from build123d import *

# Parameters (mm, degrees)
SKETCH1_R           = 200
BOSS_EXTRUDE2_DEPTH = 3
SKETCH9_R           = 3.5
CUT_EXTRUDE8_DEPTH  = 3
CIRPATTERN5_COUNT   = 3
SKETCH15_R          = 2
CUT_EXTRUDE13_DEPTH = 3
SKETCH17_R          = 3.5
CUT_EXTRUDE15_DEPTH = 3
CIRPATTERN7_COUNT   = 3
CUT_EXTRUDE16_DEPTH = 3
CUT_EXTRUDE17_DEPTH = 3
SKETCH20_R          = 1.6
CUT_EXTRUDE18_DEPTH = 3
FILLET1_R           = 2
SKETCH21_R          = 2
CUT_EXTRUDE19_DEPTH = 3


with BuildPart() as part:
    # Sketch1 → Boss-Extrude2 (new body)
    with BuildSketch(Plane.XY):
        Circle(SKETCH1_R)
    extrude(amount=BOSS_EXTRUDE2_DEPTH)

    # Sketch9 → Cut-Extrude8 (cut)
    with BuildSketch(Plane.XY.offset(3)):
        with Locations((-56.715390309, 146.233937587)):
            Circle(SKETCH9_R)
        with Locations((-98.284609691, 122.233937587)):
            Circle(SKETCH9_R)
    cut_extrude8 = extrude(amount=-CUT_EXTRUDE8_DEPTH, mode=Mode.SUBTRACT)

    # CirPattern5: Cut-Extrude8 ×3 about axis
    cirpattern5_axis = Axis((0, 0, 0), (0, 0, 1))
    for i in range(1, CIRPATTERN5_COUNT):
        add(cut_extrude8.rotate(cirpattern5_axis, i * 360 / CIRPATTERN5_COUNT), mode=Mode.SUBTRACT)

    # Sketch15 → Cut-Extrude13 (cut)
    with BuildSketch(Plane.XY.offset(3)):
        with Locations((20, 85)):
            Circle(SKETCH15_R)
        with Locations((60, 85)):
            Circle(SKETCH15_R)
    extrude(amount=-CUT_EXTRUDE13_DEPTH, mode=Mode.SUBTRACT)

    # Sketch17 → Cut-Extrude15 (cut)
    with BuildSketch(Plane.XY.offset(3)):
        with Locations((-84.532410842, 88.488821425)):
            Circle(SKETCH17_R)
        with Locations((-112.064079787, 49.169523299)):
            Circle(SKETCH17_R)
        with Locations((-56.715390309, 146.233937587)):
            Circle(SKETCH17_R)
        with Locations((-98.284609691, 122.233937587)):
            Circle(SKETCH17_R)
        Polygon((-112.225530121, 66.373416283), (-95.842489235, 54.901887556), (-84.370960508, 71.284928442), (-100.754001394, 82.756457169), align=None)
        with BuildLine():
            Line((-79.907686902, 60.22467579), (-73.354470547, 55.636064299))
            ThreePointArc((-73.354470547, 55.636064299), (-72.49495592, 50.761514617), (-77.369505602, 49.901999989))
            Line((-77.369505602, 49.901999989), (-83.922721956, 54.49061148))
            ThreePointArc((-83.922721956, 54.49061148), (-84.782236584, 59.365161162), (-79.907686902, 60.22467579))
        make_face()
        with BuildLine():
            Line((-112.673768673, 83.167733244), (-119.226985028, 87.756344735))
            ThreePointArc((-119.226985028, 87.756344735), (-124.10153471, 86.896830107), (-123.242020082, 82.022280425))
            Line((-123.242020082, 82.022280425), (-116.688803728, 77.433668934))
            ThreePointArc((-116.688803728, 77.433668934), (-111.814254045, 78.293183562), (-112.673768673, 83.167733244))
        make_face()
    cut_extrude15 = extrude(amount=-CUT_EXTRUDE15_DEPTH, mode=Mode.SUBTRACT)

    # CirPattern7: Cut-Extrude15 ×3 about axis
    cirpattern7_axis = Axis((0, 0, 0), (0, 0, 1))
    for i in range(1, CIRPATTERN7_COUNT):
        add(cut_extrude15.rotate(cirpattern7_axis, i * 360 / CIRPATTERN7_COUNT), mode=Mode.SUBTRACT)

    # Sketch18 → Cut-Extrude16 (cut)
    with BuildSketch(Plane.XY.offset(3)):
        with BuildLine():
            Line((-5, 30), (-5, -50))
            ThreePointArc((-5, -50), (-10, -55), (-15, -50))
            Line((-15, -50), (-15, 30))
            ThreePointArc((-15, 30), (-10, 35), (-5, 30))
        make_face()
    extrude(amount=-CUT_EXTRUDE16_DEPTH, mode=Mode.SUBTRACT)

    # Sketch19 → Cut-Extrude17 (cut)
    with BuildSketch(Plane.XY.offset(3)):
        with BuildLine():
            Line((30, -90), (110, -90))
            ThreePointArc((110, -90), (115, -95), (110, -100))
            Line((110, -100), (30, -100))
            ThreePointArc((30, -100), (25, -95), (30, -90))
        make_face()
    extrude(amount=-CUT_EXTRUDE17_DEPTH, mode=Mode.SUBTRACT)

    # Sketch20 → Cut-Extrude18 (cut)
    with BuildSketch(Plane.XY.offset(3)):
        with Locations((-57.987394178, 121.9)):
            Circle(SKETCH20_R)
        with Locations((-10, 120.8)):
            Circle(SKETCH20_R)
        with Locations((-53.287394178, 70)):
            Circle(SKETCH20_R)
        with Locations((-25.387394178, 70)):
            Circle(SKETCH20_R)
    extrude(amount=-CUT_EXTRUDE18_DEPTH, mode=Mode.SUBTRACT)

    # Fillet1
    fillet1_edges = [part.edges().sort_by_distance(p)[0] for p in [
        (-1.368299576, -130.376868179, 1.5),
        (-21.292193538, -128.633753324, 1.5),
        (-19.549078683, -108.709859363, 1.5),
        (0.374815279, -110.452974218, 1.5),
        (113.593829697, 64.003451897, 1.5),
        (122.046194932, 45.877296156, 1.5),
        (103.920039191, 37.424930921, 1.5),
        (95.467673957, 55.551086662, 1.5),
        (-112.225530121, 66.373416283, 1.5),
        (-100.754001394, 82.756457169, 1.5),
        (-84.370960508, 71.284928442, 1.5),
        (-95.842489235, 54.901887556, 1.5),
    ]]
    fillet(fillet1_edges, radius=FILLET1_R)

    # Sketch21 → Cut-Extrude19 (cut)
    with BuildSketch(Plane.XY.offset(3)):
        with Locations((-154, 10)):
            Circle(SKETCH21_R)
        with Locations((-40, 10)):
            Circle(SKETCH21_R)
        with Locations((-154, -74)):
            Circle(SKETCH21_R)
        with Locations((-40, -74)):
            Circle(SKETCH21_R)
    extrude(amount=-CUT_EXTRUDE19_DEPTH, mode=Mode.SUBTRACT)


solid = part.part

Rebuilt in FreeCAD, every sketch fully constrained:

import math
import FreeCAD as App
import Part
import Sketcher
Q = App.Units.Quantity


def edges_at(feature, points):
    """Names of the edges that pass closest to the given points."""
    edges = feature.Shape.Edges
    near = lambda p: min(range(len(edges)), key=lambda i: edges[i].distToShape(Part.Vertex(*p))[0])
    return sorted({f"Edge{near(p) + 1}" for p in points})


def add_polygon(sketch, points):
    """Adds a closed chain of lines whose ends are joined by coincident constraints."""
    first, n = sketch.GeometryCount, len(points)
    for a, b in zip(points, points[1:] + points[:1]):
        sketch.addGeometry(Part.LineSegment(App.Vector(*a, 0), App.Vector(*b, 0)), False)
    for i in range(n):
        sketch.addConstraint(Sketcher.Constraint("Coincident", first + i, 2, first + (i + 1) % n, 1))

doc = App.newDocument("Part")
body = doc.addObject("PartDesign::Body", "Body")

sketch1 = doc.addObject("Sketcher::SketchObject", "Sketch")
body.addObject(sketch1)
sketch1.AttachmentSupport = (doc.XY_Plane, [""])
sketch1.MapMode = "FlatFace"
sketch1.addGeometry(Part.Circle(App.Vector(0, 0, 0), App.Vector(0, 0, 1), 200), False)
sketch1.addConstraint([
    Sketcher.Constraint("Coincident", 0, 3, -1, 1),
    Sketcher.Constraint("Diameter", 0, Q("400 mm")),
])
pad1 = doc.addObject("PartDesign::Pad", "Pad")
body.addObject(pad1)
pad1.Profile = sketch1
pad1.Length = 3

sketch2 = doc.addObject("Sketcher::SketchObject", "Sketch001")
body.addObject(sketch2)
sketch2.AttachmentSupport = (doc.XY_Plane, [""])
sketch2.MapMode = "FlatFace"
sketch2.AttachmentOffset = App.Placement(App.Vector(0, 0, 3), App.Rotation())
sketch2.addGeometry([
    Part.Circle(App.Vector(-56.71539, 146.233938, 0), App.Vector(0, 0, 1), 3.5),
    Part.Circle(App.Vector(-98.28461, 122.233938, 0), App.Vector(0, 0, 1), 3.5),
], False)
sketch2.addConstraint([
    Sketcher.Constraint("Equal", 0, 1),
    Sketcher.Constraint("Diameter", 0, Q("7 mm")),
    Sketcher.Constraint("DistanceY", 1, 3, 0, 3, Q("24 mm")),
    Sketcher.Constraint("DistanceX", 0, 3, -1, 1, Q("56.71539 mm")),
    Sketcher.Constraint("DistanceX", 1, 3, -1, 1, Q("98.28461 mm")),
    Sketcher.Constraint("DistanceY", -1, 1, 0, 3, Q("146.233938 mm")),
])
pocket1 = doc.addObject("PartDesign::Pocket", "Pocket")
body.addObject(pocket1)
pocket1.Profile = sketch2
pocket1.Length = 3
doc.recompute()

polarpattern = doc.addObject("PartDesign::PolarPattern", "PolarPattern")
body.addObject(polarpattern)
polarpattern.Originals = [pocket1]
polarpattern.Axis = (doc.Z_Axis, [""])
polarpattern.Angle = 360
polarpattern.Occurrences = 3
body.Tip = polarpattern

sketch3 = doc.addObject("Sketcher::SketchObject", "Sketch002")
body.addObject(sketch3)
sketch3.AttachmentSupport = (doc.XY_Plane, [""])
sketch3.MapMode = "FlatFace"
sketch3.AttachmentOffset = App.Placement(App.Vector(0, 0, 3), App.Rotation())
sketch3.addGeometry([
    Part.Circle(App.Vector(20, 85, 0), App.Vector(0, 0, 1), 2),
    Part.Circle(App.Vector(60, 85, 0), App.Vector(0, 0, 1), 2),
], False)
sketch3.addConstraint([
    Sketcher.Constraint("Equal", 0, 1),
    Sketcher.Constraint("Horizontal", 0, 3, 1, 3),
    Sketcher.Constraint("Diameter", 0, Q("4 mm")),
    Sketcher.Constraint("DistanceX", -1, 1, 0, 3, Q("20 mm")),
    Sketcher.Constraint("DistanceY", -1, 1, 0, 3, Q("85 mm")),
    Sketcher.Constraint("DistanceX", -1, 1, 1, 3, Q("60 mm")),
])
pocket2 = doc.addObject("PartDesign::Pocket", "Pocket001")
body.addObject(pocket2)
pocket2.Profile = sketch3
pocket2.Length = 3

sketch4 = doc.addObject("Sketcher::SketchObject", "Sketch003")
body.addObject(sketch4)
sketch4.AttachmentSupport = (doc.XY_Plane, [""])
sketch4.MapMode = "FlatFace"
sketch4.AttachmentOffset = App.Placement(App.Vector(0, 0, 3), App.Rotation())
sketch4.addGeometry(Part.Circle(App.Vector(-84.532411, 88.488821, 0), App.Vector(0, 0, 1), 3.5), False)
sketch4.addGeometry(Part.Circle(App.Vector(-112.06408, 49.169523, 0), App.Vector(0, 0, 1), 3.5), False)
sketch4.addGeometry(Part.Circle(App.Vector(-56.71539, 146.233938, 0), App.Vector(0, 0, 1), 3.5), False)
sketch4.addGeometry(Part.Circle(App.Vector(-98.28461, 122.233938, 0), App.Vector(0, 0, 1), 3.5), False)
add_polygon(sketch4, [(-112.22553, 66.373416), (-95.842489, 54.901888), (-84.370961, 71.284928), (-100.754001, 82.756457)])
sketch4.addGeometry(Part.LineSegment(App.Vector(-73.354471, 55.636064, 0), App.Vector(-79.907687, 60.224676, 0)), False)
sketch4.addGeometry(Part.ArcOfCircle(Part.Circle(App.Vector(-81.915204, 57.357644, 0), App.Vector(0, 0, 1), 3.5), math.radians(55), math.radians(235)), False)
sketch4.addGeometry(Part.LineSegment(App.Vector(-83.922722, 54.490611, 0), App.Vector(-77.369506, 49.902, 0)), False)
sketch4.addGeometry(Part.ArcOfCircle(Part.Circle(App.Vector(-75.361988, 52.769032, 0), App.Vector(0, 0, 1), 3.5), math.radians(-125), math.radians(55)), False)
sketch4.addGeometry(Part.LineSegment(App.Vector(-112.673769, 83.167733, 0), App.Vector(-119.226985, 87.756345, 0)), False)
sketch4.addGeometry(Part.ArcOfCircle(Part.Circle(App.Vector(-121.234503, 84.889313, 0), App.Vector(0, 0, 1), 3.5), math.radians(55), math.radians(235)), False)
sketch4.addGeometry(Part.LineSegment(App.Vector(-123.24202, 82.02228, 0), App.Vector(-116.688804, 77.433669, 0)), False)
sketch4.addGeometry(Part.ArcOfCircle(Part.Circle(App.Vector(-114.681286, 80.300701, 0), App.Vector(0, 0, 1), 3.5), math.radians(-125), math.radians(55)), False)
sketch4.addConstraint([
    Sketcher.Constraint("Tangent", 8, 2, 9, 1),
    Sketcher.Constraint("Tangent", 9, 2, 10, 1),
    Sketcher.Constraint("Tangent", 10, 2, 11, 1),
    Sketcher.Constraint("Tangent", 11, 2, 8, 1),
    Sketcher.Constraint("Tangent", 12, 2, 13, 1),
    Sketcher.Constraint("Tangent", 13, 2, 14, 1),
    Sketcher.Constraint("Tangent", 14, 2, 15, 1),
    Sketcher.Constraint("Tangent", 15, 2, 12, 1),
    Sketcher.Constraint("Equal", 0, 1),
    Sketcher.Constraint("Equal", 1, 2),
    Sketcher.Constraint("Equal", 2, 3),
    Sketcher.Constraint("Equal", 3, 9),
    Sketcher.Constraint("Equal", 9, 11),
    Sketcher.Constraint("Equal", 11, 13),
    Sketcher.Constraint("Equal", 13, 15),
    Sketcher.Constraint("Perpendicular", 4, 5),
    Sketcher.Constraint("Perpendicular", 5, 6),
    Sketcher.Constraint("Perpendicular", 6, 7),
    Sketcher.Constraint("Perpendicular", 7, 8),
    Sketcher.Constraint("Parallel", 10, 12),
    Sketcher.Constraint("Equal", 4, 5),
    Sketcher.Constraint("Equal", 10, 12),
    Sketcher.Constraint("Diameter", 0, Q("7 mm")),
    Sketcher.Constraint("Angle", 4, Q("-35 deg")),
    Sketcher.Constraint("Distance", 4, Q("20 mm")),
    Sketcher.Constraint("Distance", 8, Q("8 mm")),
    Sketcher.Constraint("DistanceY", 3, 3, 2, 3, Q("24 mm")),
    Sketcher.Constraint("DistanceX", 6, 2, -1, 1, Q("100.754001 mm")),
    Sketcher.Constraint("DistanceY", -1, 1, 10, 2, Q("49.902 mm")),
    Sketcher.Constraint("DistanceY", -1, 1, 15, 3, Q("80.300701 mm")),
    Sketcher.Constraint("DistanceY", 1, 3, 0, 3, Q("39.319298 mm")),
    Sketcher.Constraint("DistanceX", 3, 3, 0, 3, Q("13.752199 mm")),
    Sketcher.Constraint("DistanceX", 13, 3, 9, 3, Q("39.319298 mm")),
    Sketcher.Constraint("DistanceX", 4, 2, 11, 3, Q("20.480501 mm")),
    Sketcher.Constraint("DistanceX", 0, 3, -1, 1, Q("84.532411 mm")),
    Sketcher.Constraint("DistanceY", -1, 1, 0, 3, Q("88.488821 mm")),
    Sketcher.Constraint("DistanceX", 1, 3, -1, 1, Q("112.06408 mm")),
    Sketcher.Constraint("DistanceX", 2, 3, -1, 1, Q("56.71539 mm")),
    Sketcher.Constraint("DistanceY", -1, 1, 5, 2, Q("71.284928 mm")),
    Sketcher.Constraint("DistanceY", -1, 1, 2, 3, Q("146.233938 mm")),
])
pocket3 = doc.addObject("PartDesign::Pocket", "Pocket002")
body.addObject(pocket3)
pocket3.Profile = sketch4
pocket3.Length = 3
doc.recompute()

polarpattern2 = doc.addObject("PartDesign::PolarPattern", "PolarPattern001")
body.addObject(polarpattern2)
polarpattern2.Originals = [pocket3]
polarpattern2.Axis = (doc.Z_Axis, [""])
polarpattern2.Angle = 360
polarpattern2.Occurrences = 3
body.Tip = polarpattern2

sketch5 = doc.addObject("Sketcher::SketchObject", "Sketch004")
body.addObject(sketch5)
sketch5.AttachmentSupport = (doc.XY_Plane, [""])
sketch5.MapMode = "FlatFace"
sketch5.AttachmentOffset = App.Placement(App.Vector(0, 0, 3), App.Rotation())
sketch5.addGeometry([
    Part.LineSegment(App.Vector(-5, -50, 0), App.Vector(-5, 30, 0)),
    Part.ArcOfCircle(Part.Circle(App.Vector(-10, 30, 0), App.Vector(0, 0, 1), 5), math.radians(0), math.radians(180)),
    Part.LineSegment(App.Vector(-15, 30, 0), App.Vector(-15, -50, 0)),
    Part.ArcOfCircle(Part.Circle(App.Vector(-10, -50, 0), App.Vector(0, 0, 1), 5), math.radians(180), math.radians(360)),
], False)
sketch5.addConstraint([
    Sketcher.Constraint("Tangent", 0, 2, 1, 1),
    Sketcher.Constraint("Tangent", 1, 2, 2, 1),
    Sketcher.Constraint("Tangent", 2, 2, 3, 1),
    Sketcher.Constraint("Tangent", 3, 2, 0, 1),
    Sketcher.Constraint("Vertical", 0),
    Sketcher.Constraint("Vertical", 2),
    Sketcher.Constraint("Radius", 1, Q("5 mm")),
    Sketcher.Constraint("DistanceY", 0, 1, 0, 2, Q("80 mm")),
    Sketcher.Constraint("DistanceX", 1, 3, -1, 1, Q("10 mm")),
    Sketcher.Constraint("DistanceY", -1, 1, 1, 3, Q("30 mm")),
])
pocket4 = doc.addObject("PartDesign::Pocket", "Pocket003")
body.addObject(pocket4)
pocket4.Profile = sketch5
pocket4.Length = 3

sketch6 = doc.addObject("Sketcher::SketchObject", "Sketch005")
body.addObject(sketch6)
sketch6.AttachmentSupport = (doc.XY_Plane, [""])
sketch6.MapMode = "FlatFace"
sketch6.AttachmentOffset = App.Placement(App.Vector(0, 0, 3), App.Rotation())
sketch6.addGeometry([
    Part.LineSegment(App.Vector(110, -90, 0), App.Vector(30, -90, 0)),
    Part.ArcOfCircle(Part.Circle(App.Vector(30, -95, 0), App.Vector(0, 0, 1), 5), math.radians(90), math.radians(270)),
    Part.LineSegment(App.Vector(30, -100, 0), App.Vector(110, -100, 0)),
    Part.ArcOfCircle(Part.Circle(App.Vector(110, -95, 0), App.Vector(0, 0, 1), 5), math.radians(-90), math.radians(90)),
], False)
sketch6.addConstraint([
    Sketcher.Constraint("Tangent", 0, 2, 1, 1),
    Sketcher.Constraint("Tangent", 1, 2, 2, 1),
    Sketcher.Constraint("Tangent", 2, 2, 3, 1),
    Sketcher.Constraint("Tangent", 3, 2, 0, 1),
    Sketcher.Constraint("Horizontal", 0),
    Sketcher.Constraint("Horizontal", 2),
    Sketcher.Constraint("Radius", 1, Q("5 mm")),
    Sketcher.Constraint("DistanceX", 0, 2, 0, 1, Q("80 mm")),
    Sketcher.Constraint("DistanceX", -1, 1, 1, 3, Q("30 mm")),
    Sketcher.Constraint("DistanceY", 1, 3, -1, 1, Q("95 mm")),
])
pocket5 = doc.addObject("PartDesign::Pocket", "Pocket004")
body.addObject(pocket5)
pocket5.Profile = sketch6
pocket5.Length = 3

sketch7 = doc.addObject("Sketcher::SketchObject", "Sketch006")
body.addObject(sketch7)
sketch7.AttachmentSupport = (doc.XY_Plane, [""])
sketch7.MapMode = "FlatFace"
sketch7.AttachmentOffset = App.Placement(App.Vector(0, 0, 3), App.Rotation())
sketch7.addGeometry([
    Part.Circle(App.Vector(-57.987394, 121.9, 0), App.Vector(0, 0, 1), 1.6),
    Part.Circle(App.Vector(-10, 120.8, 0), App.Vector(0, 0, 1), 1.6),
    Part.Circle(App.Vector(-53.287394, 70, 0), App.Vector(0, 0, 1), 1.6),
    Part.Circle(App.Vector(-25.387394, 70, 0), App.Vector(0, 0, 1), 1.6),
], False)
sketch7.addConstraint([
    Sketcher.Constraint("Equal", 0, 1),
    Sketcher.Constraint("Equal", 1, 2),
    Sketcher.Constraint("Equal", 2, 3),
    Sketcher.Constraint("Horizontal", 2, 3, 3, 3),
    Sketcher.Constraint("Diameter", 0, Q("3.2 mm")),
    Sketcher.Constraint("DistanceX", 1, 3, -1, 1, Q("10 mm")),
    Sketcher.Constraint("DistanceY", -1, 1, 2, 3, Q("70 mm")),
    Sketcher.Constraint("DistanceY", -1, 1, 0, 3, Q("121.9 mm")),
    Sketcher.Constraint("DistanceY", -1, 1, 1, 3, Q("120.8 mm")),
    Sketcher.Constraint("DistanceX", 0, 3, 2, 3, Q("4.7 mm")),
    Sketcher.Constraint("DistanceX", 2, 3, 3, 3, Q("27.9 mm")),
    Sketcher.Constraint("DistanceX", 0, 3, -1, 1, Q("57.987394 mm")),
])
pocket6 = doc.addObject("PartDesign::Pocket", "Pocket005")
body.addObject(pocket6)
pocket6.Profile = sketch7
pocket6.Length = 3
doc.recompute()

fillet = doc.addObject("PartDesign::Fillet", "Fillet")
body.addObject(fillet)
fillet.Base = (pocket6, edges_at(pocket6, [
    (-1.368, -130.377, 1.5),
    (-21.292, -128.634, 1.5),
    (-19.549, -108.71, 1.5),
    (0.375, -110.453, 1.5),
    (113.594, 64.003, 1.5),
    (122.046, 45.877, 1.5),
    (103.92, 37.425, 1.5),
    (95.468, 55.551, 1.5),
    (-112.226, 66.373, 1.5),
    (-100.754, 82.756, 1.5),
    (-84.371, 71.285, 1.5),
    (-95.842, 54.902, 1.5),
]))
fillet.Radius = 2

sketch8 = doc.addObject("Sketcher::SketchObject", "Sketch007")
body.addObject(sketch8)
sketch8.AttachmentSupport = (doc.XY_Plane, [""])
sketch8.MapMode = "FlatFace"
sketch8.AttachmentOffset = App.Placement(App.Vector(0, 0, 3), App.Rotation())
sketch8.addGeometry([
    Part.Circle(App.Vector(-154, 10, 0), App.Vector(0, 0, 1), 2),
    Part.Circle(App.Vector(-40, 10, 0), App.Vector(0, 0, 1), 2),
    Part.Circle(App.Vector(-154, -74, 0), App.Vector(0, 0, 1), 2),
    Part.Circle(App.Vector(-40, -74, 0), App.Vector(0, 0, 1), 2),
], False)
sketch8.addConstraint([
    Sketcher.Constraint("Equal", 0, 1),
    Sketcher.Constraint("Equal", 1, 2),
    Sketcher.Constraint("Equal", 2, 3),
    Sketcher.Constraint("Horizontal", 0, 3, 1, 3),
    Sketcher.Constraint("Horizontal", 2, 3, 3, 3),
    Sketcher.Constraint("Vertical", 0, 3, 2, 3),
    Sketcher.Constraint("Vertical", 1, 3, 3, 3),
    Sketcher.Constraint("Diameter", 0, Q("4 mm")),
    Sketcher.Constraint("DistanceX", 0, 3, -1, 1, Q("154 mm")),
    Sketcher.Constraint("DistanceY", -1, 1, 0, 3, Q("10 mm")),
    Sketcher.Constraint("DistanceX", 1, 3, -1, 1, Q("40 mm")),
    Sketcher.Constraint("DistanceY", 2, 3, -1, 1, Q("74 mm")),
])
pocket7 = doc.addObject("PartDesign::Pocket", "Pocket006")
body.addObject(pocket7)
pocket7.Profile = sketch8
pocket7.Length = 3

doc.recompute()
